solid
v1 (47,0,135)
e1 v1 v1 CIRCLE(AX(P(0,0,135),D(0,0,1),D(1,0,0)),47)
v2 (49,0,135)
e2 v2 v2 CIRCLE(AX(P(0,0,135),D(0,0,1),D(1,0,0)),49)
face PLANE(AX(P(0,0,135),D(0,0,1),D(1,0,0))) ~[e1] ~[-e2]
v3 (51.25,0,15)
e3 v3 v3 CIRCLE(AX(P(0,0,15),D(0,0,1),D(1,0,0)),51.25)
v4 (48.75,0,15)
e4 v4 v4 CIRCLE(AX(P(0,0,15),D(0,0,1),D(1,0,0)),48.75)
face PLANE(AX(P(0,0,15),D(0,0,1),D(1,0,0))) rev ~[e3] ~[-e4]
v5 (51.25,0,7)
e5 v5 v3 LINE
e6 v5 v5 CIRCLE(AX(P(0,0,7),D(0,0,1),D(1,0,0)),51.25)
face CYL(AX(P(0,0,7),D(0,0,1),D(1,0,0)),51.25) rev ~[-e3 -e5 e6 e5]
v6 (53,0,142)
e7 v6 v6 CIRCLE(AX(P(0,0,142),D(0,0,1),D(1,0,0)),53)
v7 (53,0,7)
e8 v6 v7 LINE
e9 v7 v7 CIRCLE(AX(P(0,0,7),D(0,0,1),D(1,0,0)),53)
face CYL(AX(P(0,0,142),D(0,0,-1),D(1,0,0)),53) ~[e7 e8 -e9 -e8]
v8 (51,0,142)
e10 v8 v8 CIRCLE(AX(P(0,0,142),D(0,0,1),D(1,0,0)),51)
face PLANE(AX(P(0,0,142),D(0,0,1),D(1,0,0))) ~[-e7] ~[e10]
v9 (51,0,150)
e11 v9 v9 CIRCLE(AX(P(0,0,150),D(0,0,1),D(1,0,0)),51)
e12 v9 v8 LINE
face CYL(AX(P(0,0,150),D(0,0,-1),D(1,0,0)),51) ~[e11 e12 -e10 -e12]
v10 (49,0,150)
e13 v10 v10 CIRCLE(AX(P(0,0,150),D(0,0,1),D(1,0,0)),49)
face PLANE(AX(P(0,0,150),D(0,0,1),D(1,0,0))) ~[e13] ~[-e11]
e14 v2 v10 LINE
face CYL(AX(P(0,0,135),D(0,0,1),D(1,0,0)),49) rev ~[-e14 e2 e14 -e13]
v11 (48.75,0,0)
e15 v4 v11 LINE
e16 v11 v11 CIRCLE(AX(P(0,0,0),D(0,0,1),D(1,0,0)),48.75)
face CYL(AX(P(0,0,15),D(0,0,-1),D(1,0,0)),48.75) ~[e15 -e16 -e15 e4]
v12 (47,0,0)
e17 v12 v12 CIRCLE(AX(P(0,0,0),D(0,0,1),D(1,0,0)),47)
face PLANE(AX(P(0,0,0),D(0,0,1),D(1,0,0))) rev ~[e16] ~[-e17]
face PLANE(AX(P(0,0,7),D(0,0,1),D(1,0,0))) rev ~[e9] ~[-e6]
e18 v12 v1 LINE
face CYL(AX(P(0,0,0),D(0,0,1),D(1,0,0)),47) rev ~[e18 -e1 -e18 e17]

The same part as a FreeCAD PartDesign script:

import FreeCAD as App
import Part
import Sketcher

doc = App.newDocument("Part")
params = doc.addObject("Spreadsheet::Sheet", "Params")
for row, (alias, value) in enumerate([
    ("sketch1_width", "2 mm"),
    ("sketch1_height", "135 mm"),
    ("sketch1_height2", "8 mm"),
    ("sketch1_height3", "15 mm"),
    ("sketch1_width2", "2.5 mm"),
    ("revolution_angle", "360 deg"),
], start=1):
    params.set(f"A{row}", alias)
    params.set(f"B{row}", "=" + value)
    params.setAlias(f"B{row}", alias)

body = doc.addObject("PartDesign::Body", "Body")

# Sketch on XZ plane
sketch1 = body.newObject("Sketcher::SketchObject", "Sketch")
sketch1.AttachmentSupport = (doc.getObject("XZ_Plane"), [""])
sketch1.MapMode = "FlatFace"
sketch1.addGeometry([
    Part.LineSegment(App.Vector(51.2, 7, 0), App.Vector(53, 7, 0)),  # 0
    Part.LineSegment(App.Vector(53, 7, 0), App.Vector(53, 142, 0)),  # 1
    Part.LineSegment(App.Vector(53, 142, 0), App.Vector(51, 142, 0)),  # 2
    Part.LineSegment(App.Vector(51, 142, 0), App.Vector(51, 150, 0)),  # 3
    Part.LineSegment(App.Vector(51, 150, 0), App.Vector(49, 150, 0)),  # 4
    Part.LineSegment(App.Vector(49, 150, 0), App.Vector(49, 135, 0)),  # 5
    Part.LineSegment(App.Vector(49, 135, 0), App.Vector(47, 135, 0)),  # 6
    Part.LineSegment(App.Vector(47, 135, 0), App.Vector(47, 0, 0)),  # 7
    Part.LineSegment(App.Vector(47, 0, 0), App.Vector(48.8, 0, 0)),  # 8
    Part.LineSegment(App.Vector(48.8, 0, 0), App.Vector(48.8, 15, 0)),  # 9
    Part.LineSegment(App.Vector(48.8, 15, 0), App.Vector(51.2, 15, 0)),  # 10
    Part.LineSegment(App.Vector(51.2, 15, 0), App.Vector(51.2, 7, 0)),  # 11
], False)
sketch1.addConstraint([
    Sketcher.Constraint("Coincident", 0, 2, 1, 1),
    Sketcher.Constraint("Coincident", 1, 2, 2, 1),
    Sketcher.Constraint("Coincident", 2, 2, 3, 1),
    Sketcher.Constraint("Coincident", 3, 2, 4, 1),
    Sketcher.Constraint("Coincident", 4, 2, 5, 1),
    Sketcher.Constraint("Coincident", 5, 2, 6, 1),
    Sketcher.Constraint("Coincident", 6, 2, 7, 1),
    Sketcher.Constraint("Coincident", 7, 2, 8, 1),
    Sketcher.Constraint("Coincident", 8, 2, 9, 1),
    Sketcher.Constraint("Coincident", 9, 2, 10, 1),
    Sketcher.Constraint("Coincident", 10, 2, 11, 1),
    Sketcher.Constraint("Coincident", 11, 2, 0, 1),
    Sketcher.Constraint("Horizontal", 0),
    Sketcher.Constraint("Vertical", 1),
    Sketcher.Constraint("Horizontal", 2),
    Sketcher.Constraint("Vertical", 3),
    Sketcher.Constraint("Horizontal", 4),
    Sketcher.Constraint("Vertical", 5),
    Sketcher.Constraint("Horizontal", 6),
    Sketcher.Constraint("Vertical", 7),
    Sketcher.Constraint("Horizontal", 8),
    Sketcher.Constraint("Vertical", 9),
    Sketcher.Constraint("Horizontal", 10),
    Sketcher.Constraint("Vertical", 11),
    Sketcher.Constraint("PointOnObject", 7, 2, -1),
    Sketcher.Constraint("Equal", 2, 4),
    Sketcher.Constraint("Equal", 4, 6),
    Sketcher.Constraint("Equal", 0, 8),
    Sketcher.Constraint("Equal", 1, 7),
    Sketcher.Constraint("Equal", 5, 9),
    Sketcher.Constraint("DistanceX", 2, 2, 2, 1, 2.0),
    Sketcher.Constraint("DistanceY", 1, 1, 1, 2, 135.0),
    Sketcher.Constraint("DistanceY", 3, 1, 3, 2, 8.0),
    Sketcher.Constraint("DistanceY", 5, 2, 5, 1, 15.0),
    Sketcher.Constraint("DistanceX", 10, 1, 10, 2, 2.5),
    Sketcher.Constraint("DistanceX", -1, 1, 0, 2, 53.0),
])
sketch1.setExpression("Constraints[30]", "Params.sketch1_width")
sketch1.setExpression("Constraints[31]", "Params.sketch1_height")
sketch1.setExpression("Constraints[32]", "Params.sketch1_height2")
sketch1.setExpression("Constraints[33]", "Params.sketch1_height3")
sketch1.setExpression("Constraints[34]", "Params.sketch1_width2")
revolution = body.newObject("PartDesign::Revolution", "Revolution")
revolution.Profile = sketch1
revolution.ReferenceAxis = (sketch1, ["V_Axis"])
revolution.setExpression("Angle", "Params.revolution_angle")

doc.recompute()
